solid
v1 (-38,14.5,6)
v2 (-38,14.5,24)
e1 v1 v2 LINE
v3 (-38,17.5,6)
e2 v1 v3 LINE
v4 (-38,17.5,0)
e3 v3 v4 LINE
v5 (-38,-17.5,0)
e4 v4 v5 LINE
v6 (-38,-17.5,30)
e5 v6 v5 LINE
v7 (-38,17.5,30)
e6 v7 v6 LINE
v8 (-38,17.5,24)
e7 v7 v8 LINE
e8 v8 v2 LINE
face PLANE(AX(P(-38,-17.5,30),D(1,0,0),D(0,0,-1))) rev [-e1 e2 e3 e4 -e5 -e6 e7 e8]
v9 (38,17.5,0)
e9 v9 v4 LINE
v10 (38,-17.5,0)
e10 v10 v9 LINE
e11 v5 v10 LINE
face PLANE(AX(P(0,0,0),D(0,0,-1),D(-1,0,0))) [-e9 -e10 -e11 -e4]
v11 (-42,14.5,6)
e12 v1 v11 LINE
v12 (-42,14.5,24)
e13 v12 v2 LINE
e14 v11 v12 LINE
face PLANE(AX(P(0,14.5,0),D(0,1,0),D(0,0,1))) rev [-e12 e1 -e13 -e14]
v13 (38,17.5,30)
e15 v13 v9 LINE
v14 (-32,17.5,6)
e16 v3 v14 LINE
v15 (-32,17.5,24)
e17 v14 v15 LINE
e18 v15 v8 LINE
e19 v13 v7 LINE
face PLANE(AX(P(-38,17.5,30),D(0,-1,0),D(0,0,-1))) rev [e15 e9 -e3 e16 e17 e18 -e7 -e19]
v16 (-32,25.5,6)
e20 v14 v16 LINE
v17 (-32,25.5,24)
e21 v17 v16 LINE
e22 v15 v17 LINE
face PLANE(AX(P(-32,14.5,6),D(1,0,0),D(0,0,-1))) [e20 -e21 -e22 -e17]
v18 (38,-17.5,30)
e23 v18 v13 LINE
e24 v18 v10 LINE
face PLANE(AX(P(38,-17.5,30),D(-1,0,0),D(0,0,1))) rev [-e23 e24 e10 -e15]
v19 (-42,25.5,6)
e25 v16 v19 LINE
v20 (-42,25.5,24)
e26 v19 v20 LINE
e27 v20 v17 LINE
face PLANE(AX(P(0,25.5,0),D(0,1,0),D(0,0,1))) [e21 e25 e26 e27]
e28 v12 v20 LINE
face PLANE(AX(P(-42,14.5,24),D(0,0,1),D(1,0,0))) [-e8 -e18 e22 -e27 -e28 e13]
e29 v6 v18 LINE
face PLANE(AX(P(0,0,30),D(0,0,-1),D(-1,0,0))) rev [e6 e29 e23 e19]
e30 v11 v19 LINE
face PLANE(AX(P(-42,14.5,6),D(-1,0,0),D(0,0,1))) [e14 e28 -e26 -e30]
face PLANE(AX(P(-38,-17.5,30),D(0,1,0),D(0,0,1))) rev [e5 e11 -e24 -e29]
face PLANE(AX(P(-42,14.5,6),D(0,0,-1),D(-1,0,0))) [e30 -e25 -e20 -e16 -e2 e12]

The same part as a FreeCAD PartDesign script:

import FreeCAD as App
import Part
import Sketcher

V = App.Vector


def add_polygon(sketch, points):
    """Adds a closed chain of lines whose ends are joined by coincident constraints."""
    first, n = sketch.GeometryCount, len(points)
    for a, b in zip(points, points[1:] + points[:1]):
        sketch.addGeometry(Part.LineSegment(App.Vector(*a, 0), App.Vector(*b, 0)), False)
    for i in range(n):
        sketch.addConstraint(Sketcher.Constraint("Coincident", first + i, 2, first + (i + 1) % n, 1))

doc = App.newDocument("Part")
body = doc.addObject("PartDesign::Body", "Body")

# Sketch on XY plane
sketch1 = body.newObject("Sketcher::SketchObject", "Sketch")
sketch1.AttachmentSupport = (doc.getObject("XY_Plane"), [""])
sketch1.MapMode = "FlatFace"
add_polygon(sketch1, [(-38, 18), (-38, -18), (38, -18), (38, 18)])  # lines 0-3
sketch1.addConstraint([
    Sketcher.Constraint("Vertical", 0),
    Sketcher.Constraint("Horizontal", 1),
    Sketcher.Constraint("Vertical", 2),
    Sketcher.Constraint("Horizontal", 3),
    Sketcher.Constraint("Symmetric", 0, 2, 2, 2, -1, 1),
    Sketcher.Constraint("DistanceX", 1, 1, 1, 2, 76.0),
    Sketcher.Constraint("DistanceY", 0, 2, 0, 1, 35.0),
])
pad1 = body.newObject("PartDesign::Pad", "Pad")
pad1.Profile = sketch1
pad1.Length = 30

# Sketch on XZ plane
sketch2 = body.newObject("Sketcher::SketchObject", "Sketch001")
sketch2.AttachmentSupport = (doc.getObject("XZ_Plane"), [""])
sketch2.MapMode = "FlatFace"
sketch2.AttachmentOffset = App.Placement(V(0, 0, -17.5), App.Rotation())
add_polygon(sketch2, [(-42, 6), (-42, 24), (-32, 24), (-32, 6)])  # lines 0-3
sketch2.addConstraint([
    Sketcher.Constraint("Vertical", 0),
    Sketcher.Constraint("Horizontal", 1),
    Sketcher.Constraint("Vertical", 2),
    Sketcher.Constraint("Horizontal", 3),
    Sketcher.Constraint("DistanceX", 1, 1, 1, 2, 10.0),
    Sketcher.Constraint("DistanceY", 0, 1, 0, 2, 18.0),
    Sketcher.Constraint("DistanceX", 0, 2, -1, 1, 42.0),
    Sketcher.Constraint("DistanceY", -1, 1, 0, 2, 24.0),
])
pad2 = body.newObject("PartDesign::Pad", "Pad001")
pad2.Profile = sketch2
pad2.Type = "TwoLengths"
pad2.Length = 8
pad2.Length2 = 3
pad2.Reversed = True

doc.recompute()
